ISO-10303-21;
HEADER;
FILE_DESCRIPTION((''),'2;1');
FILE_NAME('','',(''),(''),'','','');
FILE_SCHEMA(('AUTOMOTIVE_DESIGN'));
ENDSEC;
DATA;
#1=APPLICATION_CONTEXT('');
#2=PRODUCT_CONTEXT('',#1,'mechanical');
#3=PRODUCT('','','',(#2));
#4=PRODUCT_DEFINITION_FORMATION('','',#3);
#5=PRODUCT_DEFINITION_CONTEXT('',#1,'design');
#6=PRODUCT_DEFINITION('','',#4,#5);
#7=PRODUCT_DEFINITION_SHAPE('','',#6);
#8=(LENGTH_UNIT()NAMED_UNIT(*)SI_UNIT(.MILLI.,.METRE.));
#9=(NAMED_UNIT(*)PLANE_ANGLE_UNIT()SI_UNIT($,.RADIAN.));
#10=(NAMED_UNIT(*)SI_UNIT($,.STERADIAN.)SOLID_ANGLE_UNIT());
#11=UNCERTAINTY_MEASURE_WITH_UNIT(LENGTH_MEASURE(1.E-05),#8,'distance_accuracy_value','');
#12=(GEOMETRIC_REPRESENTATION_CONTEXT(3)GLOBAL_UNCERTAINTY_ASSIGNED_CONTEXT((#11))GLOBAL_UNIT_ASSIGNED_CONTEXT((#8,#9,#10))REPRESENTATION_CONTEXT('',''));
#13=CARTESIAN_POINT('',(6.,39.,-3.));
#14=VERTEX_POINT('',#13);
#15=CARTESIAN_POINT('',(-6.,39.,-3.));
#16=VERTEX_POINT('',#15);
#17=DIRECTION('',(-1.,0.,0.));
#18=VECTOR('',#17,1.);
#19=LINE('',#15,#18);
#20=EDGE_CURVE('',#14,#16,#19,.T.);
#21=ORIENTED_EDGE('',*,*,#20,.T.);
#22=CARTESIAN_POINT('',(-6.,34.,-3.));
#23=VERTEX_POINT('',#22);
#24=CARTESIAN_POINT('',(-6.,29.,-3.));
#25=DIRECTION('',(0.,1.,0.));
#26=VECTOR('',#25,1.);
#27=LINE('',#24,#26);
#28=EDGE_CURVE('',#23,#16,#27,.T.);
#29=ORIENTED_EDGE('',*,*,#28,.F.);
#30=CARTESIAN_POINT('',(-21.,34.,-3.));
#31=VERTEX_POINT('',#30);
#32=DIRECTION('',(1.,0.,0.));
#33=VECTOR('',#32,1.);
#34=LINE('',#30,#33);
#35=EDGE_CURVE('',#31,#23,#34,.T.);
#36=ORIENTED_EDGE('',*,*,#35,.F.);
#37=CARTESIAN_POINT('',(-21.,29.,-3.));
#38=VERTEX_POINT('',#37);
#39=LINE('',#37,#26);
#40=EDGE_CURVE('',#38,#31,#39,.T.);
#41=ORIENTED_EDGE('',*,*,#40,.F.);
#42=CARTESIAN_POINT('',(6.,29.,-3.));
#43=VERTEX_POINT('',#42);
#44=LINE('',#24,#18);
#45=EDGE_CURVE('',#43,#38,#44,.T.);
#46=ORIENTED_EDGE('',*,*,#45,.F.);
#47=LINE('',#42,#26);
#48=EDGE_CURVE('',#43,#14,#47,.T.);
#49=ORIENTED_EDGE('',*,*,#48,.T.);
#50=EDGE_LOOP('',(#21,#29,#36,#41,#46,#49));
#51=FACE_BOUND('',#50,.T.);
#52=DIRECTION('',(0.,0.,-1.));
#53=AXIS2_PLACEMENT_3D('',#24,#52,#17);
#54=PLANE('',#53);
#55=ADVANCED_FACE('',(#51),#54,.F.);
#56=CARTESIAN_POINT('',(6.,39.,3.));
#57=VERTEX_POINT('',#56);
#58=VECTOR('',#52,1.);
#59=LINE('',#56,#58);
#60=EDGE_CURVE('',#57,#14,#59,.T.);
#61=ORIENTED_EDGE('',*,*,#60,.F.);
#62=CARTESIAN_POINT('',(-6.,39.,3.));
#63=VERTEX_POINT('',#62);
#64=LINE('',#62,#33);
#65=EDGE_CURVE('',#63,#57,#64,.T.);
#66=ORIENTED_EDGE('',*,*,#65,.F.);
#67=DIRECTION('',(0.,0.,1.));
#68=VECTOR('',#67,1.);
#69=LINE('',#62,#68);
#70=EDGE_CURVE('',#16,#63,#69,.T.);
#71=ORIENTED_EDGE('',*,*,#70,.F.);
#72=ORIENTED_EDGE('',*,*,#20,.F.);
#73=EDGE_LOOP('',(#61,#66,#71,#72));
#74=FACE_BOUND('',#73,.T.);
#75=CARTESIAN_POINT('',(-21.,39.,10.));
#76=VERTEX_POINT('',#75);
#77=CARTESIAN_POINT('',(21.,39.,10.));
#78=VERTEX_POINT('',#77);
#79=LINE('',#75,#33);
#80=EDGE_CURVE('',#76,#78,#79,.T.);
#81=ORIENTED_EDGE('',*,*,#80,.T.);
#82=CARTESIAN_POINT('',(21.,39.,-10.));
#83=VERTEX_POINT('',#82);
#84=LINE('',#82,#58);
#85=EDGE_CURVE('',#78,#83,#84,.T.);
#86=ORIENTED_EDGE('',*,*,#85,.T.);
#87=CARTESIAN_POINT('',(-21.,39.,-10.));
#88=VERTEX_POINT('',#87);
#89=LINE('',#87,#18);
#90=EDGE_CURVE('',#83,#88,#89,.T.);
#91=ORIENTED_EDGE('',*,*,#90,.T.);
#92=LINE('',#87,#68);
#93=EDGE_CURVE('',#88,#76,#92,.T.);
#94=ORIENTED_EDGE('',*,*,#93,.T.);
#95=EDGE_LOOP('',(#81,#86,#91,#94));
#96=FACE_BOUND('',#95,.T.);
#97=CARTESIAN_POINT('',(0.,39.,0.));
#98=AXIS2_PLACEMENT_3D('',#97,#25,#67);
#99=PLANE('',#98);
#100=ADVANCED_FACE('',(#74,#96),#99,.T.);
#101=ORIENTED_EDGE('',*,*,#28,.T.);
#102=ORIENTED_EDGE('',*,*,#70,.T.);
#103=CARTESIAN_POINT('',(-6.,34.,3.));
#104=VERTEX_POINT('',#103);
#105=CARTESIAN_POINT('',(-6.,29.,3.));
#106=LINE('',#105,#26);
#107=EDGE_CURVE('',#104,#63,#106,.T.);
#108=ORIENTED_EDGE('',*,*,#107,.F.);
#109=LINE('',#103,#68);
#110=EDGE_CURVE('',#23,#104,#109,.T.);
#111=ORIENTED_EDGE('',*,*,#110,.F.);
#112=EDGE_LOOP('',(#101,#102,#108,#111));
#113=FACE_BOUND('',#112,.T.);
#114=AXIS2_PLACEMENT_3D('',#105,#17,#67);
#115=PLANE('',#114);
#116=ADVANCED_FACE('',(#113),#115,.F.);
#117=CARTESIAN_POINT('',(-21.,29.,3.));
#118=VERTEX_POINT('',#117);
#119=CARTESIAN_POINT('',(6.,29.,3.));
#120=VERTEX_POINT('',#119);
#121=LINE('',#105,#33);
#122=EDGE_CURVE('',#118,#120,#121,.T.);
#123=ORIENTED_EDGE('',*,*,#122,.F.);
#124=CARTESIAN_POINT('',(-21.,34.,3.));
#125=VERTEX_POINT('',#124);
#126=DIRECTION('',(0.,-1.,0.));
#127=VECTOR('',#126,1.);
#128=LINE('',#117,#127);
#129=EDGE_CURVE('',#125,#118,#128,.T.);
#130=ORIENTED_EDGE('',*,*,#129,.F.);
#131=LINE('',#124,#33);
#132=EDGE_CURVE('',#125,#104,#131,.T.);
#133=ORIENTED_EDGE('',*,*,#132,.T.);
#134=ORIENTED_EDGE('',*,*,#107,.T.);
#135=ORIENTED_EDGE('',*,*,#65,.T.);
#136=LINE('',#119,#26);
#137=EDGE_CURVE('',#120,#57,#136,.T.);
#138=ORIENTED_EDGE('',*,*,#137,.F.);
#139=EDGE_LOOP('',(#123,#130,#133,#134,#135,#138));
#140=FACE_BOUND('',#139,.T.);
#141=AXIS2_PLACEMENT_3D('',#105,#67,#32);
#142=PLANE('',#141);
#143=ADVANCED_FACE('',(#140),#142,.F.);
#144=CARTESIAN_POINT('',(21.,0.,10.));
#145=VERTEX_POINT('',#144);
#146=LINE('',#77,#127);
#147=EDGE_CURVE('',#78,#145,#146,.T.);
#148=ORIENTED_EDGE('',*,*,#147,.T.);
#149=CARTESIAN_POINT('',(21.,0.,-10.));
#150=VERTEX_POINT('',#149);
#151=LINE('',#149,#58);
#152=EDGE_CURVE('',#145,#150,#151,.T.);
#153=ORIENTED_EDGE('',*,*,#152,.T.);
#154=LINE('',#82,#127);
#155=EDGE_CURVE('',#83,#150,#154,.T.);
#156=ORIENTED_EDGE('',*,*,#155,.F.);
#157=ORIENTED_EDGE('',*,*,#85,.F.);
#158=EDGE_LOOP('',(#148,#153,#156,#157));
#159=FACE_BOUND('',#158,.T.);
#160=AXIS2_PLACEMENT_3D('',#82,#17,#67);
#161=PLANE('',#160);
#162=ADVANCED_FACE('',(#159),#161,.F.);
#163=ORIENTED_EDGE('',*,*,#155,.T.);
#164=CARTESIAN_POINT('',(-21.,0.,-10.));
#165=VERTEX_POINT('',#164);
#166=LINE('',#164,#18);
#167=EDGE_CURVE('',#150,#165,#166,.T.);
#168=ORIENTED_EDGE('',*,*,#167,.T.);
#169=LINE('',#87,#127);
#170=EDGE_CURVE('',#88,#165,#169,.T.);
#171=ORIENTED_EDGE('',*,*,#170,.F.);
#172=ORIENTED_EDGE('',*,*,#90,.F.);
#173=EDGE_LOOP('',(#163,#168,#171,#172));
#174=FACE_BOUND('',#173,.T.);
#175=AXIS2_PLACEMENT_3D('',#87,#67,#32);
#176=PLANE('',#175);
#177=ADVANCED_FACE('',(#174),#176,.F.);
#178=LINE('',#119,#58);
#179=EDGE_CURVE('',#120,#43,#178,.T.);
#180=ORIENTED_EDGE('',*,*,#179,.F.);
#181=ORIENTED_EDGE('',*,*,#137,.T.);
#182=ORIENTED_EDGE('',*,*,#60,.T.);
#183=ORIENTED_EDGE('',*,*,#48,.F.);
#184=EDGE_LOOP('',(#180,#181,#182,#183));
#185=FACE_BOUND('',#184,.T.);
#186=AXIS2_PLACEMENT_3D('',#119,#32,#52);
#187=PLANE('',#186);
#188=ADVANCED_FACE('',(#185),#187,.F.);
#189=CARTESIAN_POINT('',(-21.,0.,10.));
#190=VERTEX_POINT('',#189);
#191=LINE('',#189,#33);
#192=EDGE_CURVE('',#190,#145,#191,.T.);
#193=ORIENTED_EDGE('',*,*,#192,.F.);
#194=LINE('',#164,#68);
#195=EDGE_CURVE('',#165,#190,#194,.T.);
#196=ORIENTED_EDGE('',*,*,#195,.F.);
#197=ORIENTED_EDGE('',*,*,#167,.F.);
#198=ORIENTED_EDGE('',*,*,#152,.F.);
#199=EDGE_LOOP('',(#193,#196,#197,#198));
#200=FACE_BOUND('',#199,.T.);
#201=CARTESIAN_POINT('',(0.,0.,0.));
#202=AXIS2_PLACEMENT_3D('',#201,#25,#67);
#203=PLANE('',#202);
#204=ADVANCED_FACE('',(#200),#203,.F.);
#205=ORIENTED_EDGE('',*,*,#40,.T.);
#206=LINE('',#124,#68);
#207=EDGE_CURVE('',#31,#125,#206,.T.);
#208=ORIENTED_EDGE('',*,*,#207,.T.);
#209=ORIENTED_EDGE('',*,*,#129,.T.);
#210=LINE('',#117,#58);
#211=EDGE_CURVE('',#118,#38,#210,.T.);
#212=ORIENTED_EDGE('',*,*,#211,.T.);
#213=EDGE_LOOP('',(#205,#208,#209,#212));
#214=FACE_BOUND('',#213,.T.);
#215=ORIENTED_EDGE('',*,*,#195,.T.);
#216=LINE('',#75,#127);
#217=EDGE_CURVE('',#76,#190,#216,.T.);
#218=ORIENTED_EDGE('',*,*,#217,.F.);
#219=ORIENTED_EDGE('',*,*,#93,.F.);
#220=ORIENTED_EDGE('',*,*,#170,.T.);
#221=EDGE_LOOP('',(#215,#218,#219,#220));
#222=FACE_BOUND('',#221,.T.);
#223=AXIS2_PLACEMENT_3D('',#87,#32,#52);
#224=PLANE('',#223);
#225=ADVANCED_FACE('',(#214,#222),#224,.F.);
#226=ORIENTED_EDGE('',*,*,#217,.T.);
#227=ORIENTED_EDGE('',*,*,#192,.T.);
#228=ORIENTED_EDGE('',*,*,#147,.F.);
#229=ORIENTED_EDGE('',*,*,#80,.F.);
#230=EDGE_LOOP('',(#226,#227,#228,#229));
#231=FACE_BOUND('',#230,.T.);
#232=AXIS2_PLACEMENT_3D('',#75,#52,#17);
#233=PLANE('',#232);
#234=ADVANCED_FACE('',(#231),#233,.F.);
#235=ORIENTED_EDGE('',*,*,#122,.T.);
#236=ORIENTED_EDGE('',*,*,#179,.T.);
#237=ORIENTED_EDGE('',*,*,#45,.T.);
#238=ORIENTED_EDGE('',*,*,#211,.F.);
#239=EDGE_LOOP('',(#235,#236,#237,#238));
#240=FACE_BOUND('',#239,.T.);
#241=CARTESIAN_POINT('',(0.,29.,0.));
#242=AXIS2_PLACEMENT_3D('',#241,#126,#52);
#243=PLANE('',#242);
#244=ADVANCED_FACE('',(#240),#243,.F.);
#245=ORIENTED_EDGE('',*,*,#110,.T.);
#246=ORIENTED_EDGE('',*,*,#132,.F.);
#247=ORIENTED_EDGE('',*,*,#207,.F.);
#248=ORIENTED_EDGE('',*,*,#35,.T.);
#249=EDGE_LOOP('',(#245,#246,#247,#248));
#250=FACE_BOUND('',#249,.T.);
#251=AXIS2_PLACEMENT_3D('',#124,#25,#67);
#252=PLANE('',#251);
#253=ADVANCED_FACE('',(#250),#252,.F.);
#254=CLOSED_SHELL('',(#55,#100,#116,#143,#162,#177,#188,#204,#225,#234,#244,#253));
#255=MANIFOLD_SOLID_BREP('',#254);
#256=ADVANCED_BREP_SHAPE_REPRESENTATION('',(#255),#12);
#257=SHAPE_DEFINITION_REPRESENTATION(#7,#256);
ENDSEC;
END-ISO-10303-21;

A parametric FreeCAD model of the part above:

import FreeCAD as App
import Part
import Sketcher
from FreeCAD import Vector
Q = App.Units.Quantity


def add_polygon(sketch, points):
    """Adds a closed chain of lines whose ends are joined by coincident constraints."""
    first, n = sketch.GeometryCount, len(points)
    for a, b in zip(points, points[1:] + points[:1]):
        sketch.addGeometry(Part.LineSegment(App.Vector(*a, 0), App.Vector(*b, 0)), False)
    for i in range(n):
        sketch.addConstraint(Sketcher.Constraint("Coincident", first + i, 2, first + (i + 1) % n, 1))

doc = App.newDocument("Part")
params = doc.addObject("Spreadsheet::Sheet", "Params")
for row, (alias, value) in enumerate([
    ("sketch1_width", "42 mm"),
    ("sketch1_height", "20 mm"),
    ("pad1_length", "39 mm"),
    ("sketch2_width", "12 mm"),
    ("sketch2_height", "6 mm"),
    ("pocket1_length", "10 mm"),
    ("sketch3_width", "5 mm"),
    ("sketch3_height", "6 mm"),
], start=1):
    params.set(f"A{row}", alias)
    params.set(f"B{row}", "=" + value)
    params.setAlias(f"B{row}", alias)

body = doc.addObject("PartDesign::Body", "Body")

sketch1 = body.newObject("Sketcher::SketchObject", "Sketch")
sketch1.AttachmentSupport = (doc.getObject("XZ_Plane"), [""])
sketch1.MapMode = "FlatFace"
add_polygon(sketch1, [(-21, -10), (-21, 10), (21, 10), (21, -10)])
sketch1.addConstraint(Sketcher.Constraint("Vertical", 0))
sketch1.addConstraint(Sketcher.Constraint("Horizontal", 1))
sketch1.addConstraint(Sketcher.Constraint("Vertical", 2))
sketch1.addConstraint(Sketcher.Constraint("Horizontal", 3))
sketch1.addConstraint(Sketcher.Constraint("Symmetric", 0, 2, 2, 2, -1, 1))
sketch1.addConstraint(Sketcher.Constraint("DistanceX", 1, 1, 1, 2, Q("42 mm")))
sketch1.addConstraint(Sketcher.Constraint("DistanceY", 0, 1, 0, 2, Q("20 mm")))
sketch1.setExpression("Constraints[9]", "Params.sketch1_width")
sketch1.setExpression("Constraints[10]", "Params.sketch1_height")
pad1 = body.newObject("PartDesign::Pad", "Pad")
pad1.Profile = sketch1
pad1.setExpression("Length", "Params.pad1_length")
pad1.Reversed = True

sketch2 = body.newObject("Sketcher::SketchObject", "Sketch001")
sketch2.AttachmentSupport = (doc.getObject("XZ_Plane"), [""])
sketch2.MapMode = "FlatFace"
sketch2.AttachmentOffset = App.Placement(Vector(0, 0, -39), App.Rotation())
add_polygon(sketch2, [(-6, -3), (-6, 3), (6, 3), (6, -3)])
sketch2.addConstraint(Sketcher.Constraint("Vertical", 0))
sketch2.addConstraint(Sketcher.Constraint("Horizontal", 1))
sketch2.addConstraint(Sketcher.Constraint("Vertical", 2))
sketch2.addConstraint(Sketcher.Constraint("Horizontal", 3))
sketch2.addConstraint(Sketcher.Constraint("Symmetric", 0, 2, 2, 2, -1, 1))
sketch2.addConstraint(Sketcher.Constraint("DistanceX", 1, 1, 1, 2, Q("12 mm")))
sketch2.addConstraint(Sketcher.Constraint("DistanceY", 0, 1, 0, 2, Q("6 mm")))
sketch2.setExpression("Constraints[9]", "Params.sketch2_width")
sketch2.setExpression("Constraints[10]", "Params.sketch2_height")
pocket1 = body.newObject("PartDesign::Pocket", "Pocket")
pocket1.Profile = sketch2
pocket1.setExpression("Length", "Params.pocket1_length")
pocket1.Reversed = True

sketch3 = body.newObject("Sketcher::SketchObject", "Sketch002")
sketch3.AttachmentSupport = (doc.getObject("YZ_Plane"), [""])
sketch3.MapMode = "FlatFace"
sketch3.AttachmentOffset = App.Placement(Vector(0, 0, -6), App.Rotation())
add_polygon(sketch3, [(34, 3), (29, 3), (29, -3), (34, -3)])
sketch3.addConstraint(Sketcher.Constraint("Horizontal", 0))
sketch3.addConstraint(Sketcher.Constraint("Vertical", 1))
sketch3.addConstraint(Sketcher.Constraint("Horizontal", 2))
sketch3.addConstraint(Sketcher.Constraint("Vertical", 3))
sketch3.addConstraint(Sketcher.Constraint("DistanceX", 0, 2, 0, 1, Q("5 mm")))
sketch3.addConstraint(Sketcher.Constraint("DistanceY", 1, 2, 1, 1, Q("6 mm")))
sketch3.addConstraint(Sketcher.Constraint("DistanceX", -1, 1, 0, 2, Q("29 mm")))
sketch3.addConstraint(Sketcher.Constraint("DistanceY", -1, 1, 0, 2, Q("3 mm")))
sketch3.setExpression("Constraints[8]", "Params.sketch3_width")
sketch3.setExpression("Constraints[9]", "Params.sketch3_height")
pocket2 = body.newObject("PartDesign::Pocket", "Pocket001")
pocket2.Profile = sketch3
pocket2.Type = "ThroughAll"

doc.recompute()
